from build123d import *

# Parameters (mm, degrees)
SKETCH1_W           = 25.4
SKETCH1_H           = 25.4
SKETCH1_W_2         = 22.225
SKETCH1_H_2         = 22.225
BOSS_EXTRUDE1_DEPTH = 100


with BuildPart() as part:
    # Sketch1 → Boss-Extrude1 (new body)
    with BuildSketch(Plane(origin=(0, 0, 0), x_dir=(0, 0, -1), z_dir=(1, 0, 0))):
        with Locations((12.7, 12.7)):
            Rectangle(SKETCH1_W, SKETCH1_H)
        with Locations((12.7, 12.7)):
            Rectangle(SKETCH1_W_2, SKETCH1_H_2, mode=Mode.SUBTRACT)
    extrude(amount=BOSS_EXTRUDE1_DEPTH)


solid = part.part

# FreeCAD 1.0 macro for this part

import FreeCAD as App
import Part
import Sketcher
from FreeCAD import Vector
Q = App.Units.Quantity


def add_polygon(sketch, points):
    """Adds a closed chain of lines whose ends are joined by coincident constraints."""
    first, n = sketch.GeometryCount, len(points)
    for a, b in zip(points, points[1:] + points[:1]):
        sketch.addGeometry(Part.LineSegment(App.Vector(*a, 0), App.Vector(*b, 0)), False)
    for i in range(n):
        sketch.addConstraint(Sketcher.Constraint("Coincident", first + i, 2, first + (i + 1) % n, 1))

doc = App.newDocument("Part")
body = doc.addObject("PartDesign::Body", "Body")

sketch1 = doc.addObject("Sketcher::SketchObject", "Sketch")
body.addObject(sketch1)
sketch1.AttachmentSupport = (doc.YZ_Plane, [""])
sketch1.MapMode = "FlatFace"
add_polygon(sketch1, [(25.4, 0), (0, 0), (0, -25.4), (25.4, -25.4)])
add_polygon(sketch1, [(1.5875, -23.8125), (1.5875, -1.5875), (23.8125, -1.5875), (23.8125, -23.8125)])
sketch1.addConstraint(Sketcher.Constraint("Horizontal", 0))
sketch1.addConstraint(Sketcher.Constraint("Vertical", 1))
sketch1.addConstraint(Sketcher.Constraint("Horizontal", 2))
sketch1.addConstraint(Sketcher.Constraint("Vertical", 3))
sketch1.addConstraint(Sketcher.Constraint("Vertical", 4))
sketch1.addConstraint(Sketcher.Constraint("Horizontal", 5))
sketch1.addConstraint(Sketcher.Constraint("Vertical", 6))
sketch1.addConstraint(Sketcher.Constraint("Horizontal", 7))
sketch1.addConstraint(Sketcher.Constraint("Coincident", 0, 2, -1, 1))
sketch1.addConstraint(Sketcher.Constraint("Equal", 2, 1))
sketch1.addConstraint(Sketcher.Constraint("Equal", 7, 4))
sketch1.addConstraint(Sketcher.Constraint("DistanceX", 0, 2, 0, 1, Q("1 in")))
sketch1.addConstraint(Sketcher.Constraint("DistanceX", 5, 1, 5, 2, Q("0.875 in")))
sketch1.addConstraint(Sketcher.Constraint("DistanceX", -1, 1, 4, 2, Q("0.0625 in")))
sketch1.addConstraint(Sketcher.Constraint("DistanceY", 4, 2, -1, 1, Q("0.0625 in")))
pad1 = doc.addObject("PartDesign::Pad", "Pad")
body.addObject(pad1)
pad1.Profile = sketch1
pad1.Length = 100

doc.recompute()
